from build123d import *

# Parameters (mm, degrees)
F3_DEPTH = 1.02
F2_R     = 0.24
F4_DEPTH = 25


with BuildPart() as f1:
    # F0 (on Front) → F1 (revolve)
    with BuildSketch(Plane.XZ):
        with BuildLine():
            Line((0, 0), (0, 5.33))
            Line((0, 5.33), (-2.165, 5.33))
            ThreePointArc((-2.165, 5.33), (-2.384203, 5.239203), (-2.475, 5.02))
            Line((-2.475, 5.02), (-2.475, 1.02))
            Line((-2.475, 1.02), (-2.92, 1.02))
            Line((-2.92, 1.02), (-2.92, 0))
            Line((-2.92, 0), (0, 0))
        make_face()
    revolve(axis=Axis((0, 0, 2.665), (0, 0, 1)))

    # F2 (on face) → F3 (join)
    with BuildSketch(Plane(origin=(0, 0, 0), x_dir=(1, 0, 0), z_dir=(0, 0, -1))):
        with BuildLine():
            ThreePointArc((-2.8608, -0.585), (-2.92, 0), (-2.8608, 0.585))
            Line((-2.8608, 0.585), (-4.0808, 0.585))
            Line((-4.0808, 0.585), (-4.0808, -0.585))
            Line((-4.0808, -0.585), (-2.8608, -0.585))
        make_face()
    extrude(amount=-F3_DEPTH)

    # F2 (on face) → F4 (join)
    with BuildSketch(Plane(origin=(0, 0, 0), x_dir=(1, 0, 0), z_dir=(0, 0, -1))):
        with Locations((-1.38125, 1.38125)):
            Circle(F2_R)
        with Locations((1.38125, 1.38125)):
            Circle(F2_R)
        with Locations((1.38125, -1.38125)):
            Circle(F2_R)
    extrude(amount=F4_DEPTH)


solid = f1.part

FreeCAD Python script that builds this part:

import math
import FreeCAD as App
import Part
import Sketcher
from FreeCAD import Vector
Q = App.Units.Quantity

doc = App.newDocument("Part")
params = doc.addObject("Spreadsheet::Sheet", "Params")
for row, (alias, value) in enumerate([
    ("sketch1_height", "4 mm"),
    ("sketch1_radius", "0.31 mm"),
    ("sketch1_width", "2.92 mm"),
    ("sketch1_height2", "5.33 mm"),
    ("revolution_angle", "360 deg"),
    ("sketch2_width", "1.22 mm"),
    ("sketch2_height", "1.17 mm"),
    ("pad1_length", "1.02 mm"),
    ("sketch3_diameter", "0.48 mm"),
    ("pad2_length", "25 mm"),
], start=1):
    params.set(f"A{row}", alias)
    params.set(f"B{row}", "=" + value)
    params.setAlias(f"B{row}", alias)

body = doc.addObject("PartDesign::Body", "Body")

sketch1 = body.newObject("Sketcher::SketchObject", "Sketch")
sketch1.AttachmentSupport = (doc.getObject("XZ_Plane"), [""])
sketch1.MapMode = "FlatFace"
sketch1.addGeometry([
    Part.LineSegment(Vector(0, 0, 0), Vector(0, 5.33, 0)),
    Part.LineSegment(Vector(0, 5.33, 0), Vector(-2.165, 5.33, 0)),
    Part.ArcOfCircle(Part.Circle(Vector(-2.165, 5.02, 0), Vector(0, 0, 1), 0.31), math.radians(90.000065), math.radians(179.999935)),
    Part.LineSegment(Vector(-2.475, 5.02, 0), Vector(-2.475, 1.02, 0)),
    Part.LineSegment(Vector(-2.475, 1.02, 0), Vector(-2.92, 1.02, 0)),
    Part.LineSegment(Vector(-2.92, 1.02, 0), Vector(-2.92, 0, 0)),
    Part.LineSegment(Vector(-2.92, 0, 0), Vector(0, 0, 0)),
], False)
sketch1.addConstraint([
    Sketcher.Constraint("Coincident", 0, 2, 1, 1),
    Sketcher.Constraint("Tangent", 1, 2, 2, 1),
    Sketcher.Constraint("Tangent", 2, 2, 3, 1),
    Sketcher.Constraint("Coincident", 3, 2, 4, 1),
    Sketcher.Constraint("Coincident", 4, 2, 5, 1),
    Sketcher.Constraint("Coincident", 5, 2, 6, 1),
    Sketcher.Constraint("Coincident", 6, 2, 0, 1),
    Sketcher.Constraint("Vertical", 0),
    Sketcher.Constraint("Horizontal", 1),
    Sketcher.Constraint("Vertical", 3),
    Sketcher.Constraint("Horizontal", 4),
    Sketcher.Constraint("Vertical", 5),
    Sketcher.Constraint("Horizontal", 6),
    Sketcher.Constraint("Coincident", 6, 2, -1, 1),
    Sketcher.Constraint("DistanceY", 3, 2, 3, 1, Q("4 mm")),
    Sketcher.Constraint("Radius", 2, Q("0.31 mm")),
    Sketcher.Constraint("DistanceX", 6, 1, 6, 2, Q("2.92 mm")),
    Sketcher.Constraint("DistanceY", 0, 1, 0, 2, Q("5.33 mm")),
    Sketcher.Constraint("DistanceX", 1, 2, 1, 1, Q("2.165 mm")),
])
sketch1.setExpression("Constraints[14]", "Params.sketch1_height")
sketch1.setExpression("Constraints[15]", "Params.sketch1_radius")
sketch1.setExpression("Constraints[16]", "Params.sketch1_width")
sketch1.setExpression("Constraints[17]", "Params.sketch1_height2")
revolution = body.newObject("PartDesign::Revolution", "Revolution")
revolution.Profile = sketch1
revolution.ReferenceAxis = (sketch1, ["V_Axis"])
revolution.setExpression("Angle", "Params.revolution_angle")

sketch2 = body.newObject("Sketcher::SketchObject", "Sketch001")
sketch2.AttachmentSupport = (doc.getObject("XY_Plane"), [""])
sketch2.MapMode = "FlatFace"
sketch2.addGeometry([
    Part.ArcOfCircle(Part.Circle(Vector(0.000014, 0, 0), Vector(0, 0, 1), 2.920014), math.radians(168.443069), math.radians(191.556931)),
    Part.LineSegment(Vector(-2.8608, -0.585, 0), Vector(-4.0808, -0.585, 0)),
    Part.LineSegment(Vector(-4.0808, -0.585, 0), Vector(-4.0808, 0.585, 0)),
    Part.LineSegment(Vector(-4.0808, 0.585, 0), Vector(-2.8608, 0.585, 0)),
], False)
sketch2.addConstraint([
    Sketcher.Constraint("Coincident", 0, 2, 1, 1),
    Sketcher.Constraint("Coincident", 1, 2, 2, 1),
    Sketcher.Constraint("Coincident", 2, 2, 3, 1),
    Sketcher.Constraint("Coincident", 3, 2, 0, 1),
    Sketcher.Constraint("Horizontal", 1),
    Sketcher.Constraint("Vertical", 2),
    Sketcher.Constraint("Horizontal", 3),
    Sketcher.Constraint("Symmetric", 0, 2, 3, 2, -1),
    Sketcher.Constraint("DistanceX", 1, 2, 1, 1, Q("1.22 mm")),
    Sketcher.Constraint("DistanceY", 2, 1, 2, 2, Q("1.17 mm")),
    Sketcher.Constraint("Radius", 0, Q("2.920014 mm")),
    Sketcher.Constraint("DistanceX", 0, 2, -1, 1, Q("2.8608 mm")),
])
sketch2.setExpression("Constraints[8]", "Params.sketch2_width")
sketch2.setExpression("Constraints[9]", "Params.sketch2_height")
pad1 = body.newObject("PartDesign::Pad", "Pad")
pad1.Profile = sketch2
pad1.setExpression("Length", "Params.pad1_length")

sketch3 = body.newObject("Sketcher::SketchObject", "Sketch002")
sketch3.AttachmentSupport = (doc.getObject("XY_Plane"), [""])
sketch3.MapMode = "FlatFace"
sketch3.addGeometry([
    Part.Circle(Vector(-1.38125, -1.38125, 0), Vector(0, 0, 1), 0.24),
    Part.Circle(Vector(1.38125, -1.38125, 0), Vector(0, 0, 1), 0.24),
    Part.Circle(Vector(1.38125, 1.38125, 0), Vector(0, 0, 1), 0.24),
], False)
sketch3.addConstraint([
    Sketcher.Constraint("Equal", 0, 1),
    Sketcher.Constraint("Equal", 1, 2),
    Sketcher.Constraint("Symmetric", 0, 3, 2, 3, -1, 1),
    Sketcher.Constraint("Symmetric", 0, 3, 1, 3, -2),
    Sketcher.Constraint("Diameter", 0, Q("0.48 mm")),
    Sketcher.Constraint("DistanceX", 0, 3, 1, 3, Q("2.7625 mm")),
    Sketcher.Constraint("DistanceY", 1, 3, 2, 3, Q("2.7625 mm")),
])
sketch3.setExpression("Constraints[4]", "Params.sketch3_diameter")
pad2 = body.newObject("PartDesign::Pad", "Pad001")
pad2.Profile = sketch3
pad2.setExpression("Length", "Params.pad2_length")
pad2.Reversed = True

doc.recompute()
